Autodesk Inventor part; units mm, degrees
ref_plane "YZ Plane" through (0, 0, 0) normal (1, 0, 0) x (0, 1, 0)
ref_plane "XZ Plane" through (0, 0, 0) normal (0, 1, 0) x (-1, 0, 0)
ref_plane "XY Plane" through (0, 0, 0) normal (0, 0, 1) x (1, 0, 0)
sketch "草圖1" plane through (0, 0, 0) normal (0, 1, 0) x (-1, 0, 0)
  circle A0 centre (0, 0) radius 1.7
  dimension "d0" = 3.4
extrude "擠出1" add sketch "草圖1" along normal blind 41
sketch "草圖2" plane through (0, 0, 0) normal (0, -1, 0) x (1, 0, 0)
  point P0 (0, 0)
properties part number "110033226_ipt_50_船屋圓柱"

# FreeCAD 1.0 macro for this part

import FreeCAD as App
import Part
import Sketcher

V = App.Vector

doc = App.newDocument("Part")
params = doc.addObject("Spreadsheet::Sheet", "Params")
for row, (alias, value) in enumerate([
    ("sketch1_diameter", "3.4 mm"),
    ("pad1_length", "41 mm"),
], start=1):
    params.set(f"A{row}", alias)
    params.set(f"B{row}", "=" + value)
    params.setAlias(f"B{row}", alias)

body = doc.addObject("PartDesign::Body", "Body")

sketch1 = body.newObject("Sketcher::SketchObject", "Sketch")
sketch1.AttachmentSupport = (doc.getObject("XZ_Plane"), [""])
sketch1.MapMode = "FlatFace"
sketch1.addGeometry(Part.Circle(V(0, 0, 0), V(0, 0, 1), 1.7), False)
sketch1.addConstraint(Sketcher.Constraint("Coincident", 0, 3, -1, 1))
sketch1.addConstraint(Sketcher.Constraint("Diameter", 0, 3.4))
sketch1.setExpression("Constraints[1]", "Params.sketch1_diameter")
pad1 = body.newObject("PartDesign::Pad", "Pad")
pad1.Profile = sketch1
pad1.setExpression("Length", "Params.pad1_length")
pad1.Reversed = True

doc.recompute()
